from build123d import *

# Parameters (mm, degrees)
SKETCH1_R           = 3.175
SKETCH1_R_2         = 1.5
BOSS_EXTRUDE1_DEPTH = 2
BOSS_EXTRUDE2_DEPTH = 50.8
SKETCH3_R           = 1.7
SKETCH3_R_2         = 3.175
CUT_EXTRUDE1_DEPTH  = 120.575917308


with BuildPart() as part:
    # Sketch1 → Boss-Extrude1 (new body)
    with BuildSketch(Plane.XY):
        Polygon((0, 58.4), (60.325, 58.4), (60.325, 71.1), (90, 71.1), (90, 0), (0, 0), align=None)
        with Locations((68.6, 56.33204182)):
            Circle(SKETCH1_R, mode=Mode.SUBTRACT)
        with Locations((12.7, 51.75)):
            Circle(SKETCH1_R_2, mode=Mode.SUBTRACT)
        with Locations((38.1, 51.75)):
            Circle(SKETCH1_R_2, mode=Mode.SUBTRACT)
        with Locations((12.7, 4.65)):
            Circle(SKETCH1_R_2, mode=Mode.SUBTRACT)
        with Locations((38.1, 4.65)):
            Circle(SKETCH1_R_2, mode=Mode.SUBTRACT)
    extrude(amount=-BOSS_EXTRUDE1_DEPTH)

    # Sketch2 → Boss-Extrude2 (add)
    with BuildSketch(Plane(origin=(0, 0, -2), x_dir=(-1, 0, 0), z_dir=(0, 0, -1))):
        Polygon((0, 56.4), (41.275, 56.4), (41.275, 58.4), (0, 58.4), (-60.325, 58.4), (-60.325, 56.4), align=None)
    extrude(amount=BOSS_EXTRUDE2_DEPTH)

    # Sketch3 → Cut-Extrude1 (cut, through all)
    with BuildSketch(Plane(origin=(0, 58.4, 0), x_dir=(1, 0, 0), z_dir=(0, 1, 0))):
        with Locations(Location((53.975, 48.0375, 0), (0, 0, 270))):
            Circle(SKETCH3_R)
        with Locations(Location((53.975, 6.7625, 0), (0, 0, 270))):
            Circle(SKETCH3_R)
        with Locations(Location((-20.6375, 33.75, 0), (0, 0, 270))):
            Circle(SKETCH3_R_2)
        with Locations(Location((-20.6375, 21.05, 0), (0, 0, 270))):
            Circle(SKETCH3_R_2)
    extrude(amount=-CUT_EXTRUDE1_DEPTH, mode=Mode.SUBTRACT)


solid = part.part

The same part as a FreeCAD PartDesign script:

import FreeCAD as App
import Part
import Sketcher

V = App.Vector

doc = App.newDocument("Part")
body = doc.addObject("PartDesign::Body", "Body")

# Sketch on XY plane
sketch1 = doc.addObject("Sketcher::SketchObject", "Sketch")
body.addObject(sketch1)
sketch1.AttachmentSupport = (doc.XY_Plane, [""])
sketch1.MapMode = "FlatFace"
sketch1.addGeometry([
    Part.LineSegment(V(60.325, 58.4, 0), V(0, 58.4, 0)),  # 0
    Part.LineSegment(V(0, 58.4, 0), V(0, 0, 0)),  # 1
    Part.LineSegment(V(0, 0, 0), V(90, 0, 0)),  # 2
    Part.LineSegment(V(90, 0, 0), V(90, 71.1, 0)),  # 3
    Part.LineSegment(V(90, 71.1, 0), V(60.325, 71.1, 0)),  # 4
    Part.LineSegment(V(60.325, 71.1, 0), V(60.325, 58.4, 0)),  # 5
    Part.Circle(V(38.1, 4.65, 0), V(0, 0, 1), 1.5),  # 6
    Part.Circle(V(12.7, 4.65, 0), V(0, 0, 1), 1.5),  # 7
    Part.Circle(V(68.6, 56.332042, 0), V(0, 0, 1), 3.175),  # 8
    Part.Circle(V(38.1, 51.75, 0), V(0, 0, 1), 1.5),  # 9
    Part.Circle(V(12.7, 51.75, 0), V(0, 0, 1), 1.5),  # 10
], False)
sketch1.addConstraint([
    Sketcher.Constraint("Coincident", 0, 2, 1, 1),
    Sketcher.Constraint("Coincident", 1, 2, 2, 1),
    Sketcher.Constraint("Coincident", 2, 2, 3, 1),
    Sketcher.Constraint("Coincident", 3, 2, 4, 1),
    Sketcher.Constraint("Coincident", 4, 2, 5, 1),
    Sketcher.Constraint("Coincident", 5, 2, 0, 1),
    Sketcher.Constraint("Horizontal", 0),
    Sketcher.Constraint("Vertical", 1),
    Sketcher.Constraint("Horizontal", 2),
    Sketcher.Constraint("Vertical", 3),
    Sketcher.Constraint("Horizontal", 4),
    Sketcher.Constraint("Vertical", 5),
    Sketcher.Constraint("Coincident", 1, 2, -1, 1),
    Sketcher.Constraint("Equal", 6, 7),
    Sketcher.Constraint("Equal", 7, 9),
    Sketcher.Constraint("Equal", 9, 10),
    Sketcher.Constraint("Horizontal", 6, 3, 7, 3),
    Sketcher.Constraint("Horizontal", 9, 3, 10, 3),
    Sketcher.Constraint("Vertical", 6, 3, 9, 3),
    Sketcher.Constraint("Vertical", 7, 3, 10, 3),
    Sketcher.Constraint("Diameter", 6, 3.0),
    Sketcher.Constraint("Diameter", 8, 6.35),
    Sketcher.Constraint("DistanceX", 2, 1, 2, 2, 90.0),
    Sketcher.Constraint("DistanceY", 1, 2, 1, 1, 58.4),
    Sketcher.Constraint("DistanceY", 3, 1, 3, 2, 71.1),
    Sketcher.Constraint("DistanceX", -1, 1, 6, 3, 38.1),
    Sketcher.Constraint("DistanceX", -1, 1, 7, 3, 12.7),
    Sketcher.Constraint("DistanceX", -1, 1, 8, 3, 68.6),
    Sketcher.Constraint("DistanceY", 6, 3, 9, 3, 47.1),
    Sketcher.Constraint("DistanceX", 0, 2, 0, 1, 60.325),
    Sketcher.Constraint("DistanceY", -1, 1, 6, 3, 4.65),
    Sketcher.Constraint("DistanceY", -1, 1, 8, 3, 56.332042),
])
pad1 = doc.addObject("PartDesign::Pad", "Pad")
body.addObject(pad1)
pad1.Profile = sketch1
pad1.Length = 2
pad1.Reversed = True

# Sketch on XY plane
sketch2 = doc.addObject("Sketcher::SketchObject", "Sketch001")
body.addObject(sketch2)
sketch2.AttachmentSupport = (doc.XY_Plane, [""])
sketch2.MapMode = "FlatFace"
sketch2.AttachmentOffset = App.Placement(V(0, 0, -2), App.Rotation())
sketch2.addGeometry([
    Part.LineSegment(V(-41.275, 56.4, 0), V(-41.275, 58.4, 0)),
    Part.LineSegment(V(-41.275, 58.4, 0), V(60.325, 58.4, 0)),
    Part.LineSegment(V(60.325, 58.4, 0), V(60.325, 56.4, 0)),
    Part.LineSegment(V(60.325, 56.4, 0), V(-41.275, 56.4, 0)),
], False)
sketch2.addConstraint([
    Sketcher.Constraint("Coincident", 0, 2, 1, 1),
    Sketcher.Constraint("Coincident", 1, 2, 2, 1),
    Sketcher.Constraint("Coincident", 2, 2, 3, 1),
    Sketcher.Constraint("Coincident", 3, 2, 0, 1),
    Sketcher.Constraint("Vertical", 0),
    Sketcher.Constraint("Horizontal", 1),
    Sketcher.Constraint("Vertical", 2),
    Sketcher.Constraint("Horizontal", 3),
    Sketcher.Constraint("DistanceY", 0, 1, 0, 2, 2.0),
    Sketcher.Constraint("DistanceX", 1, 1, 1, 2, 101.6),
    Sketcher.Constraint("DistanceY", -1, 1, 0, 2, 58.4),
    Sketcher.Constraint("DistanceX", 0, 2, -1, 1, 41.275),
])
pad2 = doc.addObject("PartDesign::Pad", "Pad001")
body.addObject(pad2)
pad2.Profile = sketch2
pad2.Length = 50.8
pad2.Reversed = True

# Sketch on XZ plane
sketch3 = doc.addObject("Sketcher::SketchObject", "Sketch002")
body.addObject(sketch3)
sketch3.AttachmentSupport = (doc.XZ_Plane, [""])
sketch3.MapMode = "FlatFace"
sketch3.AttachmentOffset = App.Placement(V(0, 0, -58.4), App.Rotation())
sketch3.addGeometry([
    Part.Circle(V(53.975, -48.0375, 0), V(0, 0, 1), 1.7),
    Part.Circle(V(53.975, -6.7625, 0), V(0, 0, 1), 1.7),
    Part.Circle(V(-20.6375, -33.75, 0), V(0, 0, 1), 3.175),
    Part.Circle(V(-20.6375, -21.05, 0), V(0, 0, 1), 3.175),
], False)
sketch3.addConstraint([
    Sketcher.Constraint("Equal", 0, 1),
    Sketcher.Constraint("Equal", 2, 3),
    Sketcher.Constraint("Vertical", 0, 3, 1, 3),
    Sketcher.Constraint("Vertical", 2, 3, 3, 3),
    Sketcher.Constraint("Diameter", 0, 3.4),
    Sketcher.Constraint("Diameter", 2, 6.35),
    Sketcher.Constraint("DistanceY", 2, 3, 3, 3, 12.7),
    Sketcher.Constraint("DistanceY", 2, 3, -1, 1, 33.75),
    Sketcher.Constraint("DistanceX", -1, 1, 0, 3, 53.975),
    Sketcher.Constraint("DistanceY", 0, 3, 1, 3, 41.275),
    Sketcher.Constraint("DistanceY", 0, 3, -1, 1, 48.0375),
    Sketcher.Constraint("DistanceX", 2, 3, -1, 1, 20.6375),
])
pocket1 = doc.addObject("PartDesign::Pocket", "Pocket")
body.addObject(pocket1)
pocket1.Profile = sketch3
pocket1.Type = "ThroughAll"
pocket1.Reversed = True

doc.recompute()
